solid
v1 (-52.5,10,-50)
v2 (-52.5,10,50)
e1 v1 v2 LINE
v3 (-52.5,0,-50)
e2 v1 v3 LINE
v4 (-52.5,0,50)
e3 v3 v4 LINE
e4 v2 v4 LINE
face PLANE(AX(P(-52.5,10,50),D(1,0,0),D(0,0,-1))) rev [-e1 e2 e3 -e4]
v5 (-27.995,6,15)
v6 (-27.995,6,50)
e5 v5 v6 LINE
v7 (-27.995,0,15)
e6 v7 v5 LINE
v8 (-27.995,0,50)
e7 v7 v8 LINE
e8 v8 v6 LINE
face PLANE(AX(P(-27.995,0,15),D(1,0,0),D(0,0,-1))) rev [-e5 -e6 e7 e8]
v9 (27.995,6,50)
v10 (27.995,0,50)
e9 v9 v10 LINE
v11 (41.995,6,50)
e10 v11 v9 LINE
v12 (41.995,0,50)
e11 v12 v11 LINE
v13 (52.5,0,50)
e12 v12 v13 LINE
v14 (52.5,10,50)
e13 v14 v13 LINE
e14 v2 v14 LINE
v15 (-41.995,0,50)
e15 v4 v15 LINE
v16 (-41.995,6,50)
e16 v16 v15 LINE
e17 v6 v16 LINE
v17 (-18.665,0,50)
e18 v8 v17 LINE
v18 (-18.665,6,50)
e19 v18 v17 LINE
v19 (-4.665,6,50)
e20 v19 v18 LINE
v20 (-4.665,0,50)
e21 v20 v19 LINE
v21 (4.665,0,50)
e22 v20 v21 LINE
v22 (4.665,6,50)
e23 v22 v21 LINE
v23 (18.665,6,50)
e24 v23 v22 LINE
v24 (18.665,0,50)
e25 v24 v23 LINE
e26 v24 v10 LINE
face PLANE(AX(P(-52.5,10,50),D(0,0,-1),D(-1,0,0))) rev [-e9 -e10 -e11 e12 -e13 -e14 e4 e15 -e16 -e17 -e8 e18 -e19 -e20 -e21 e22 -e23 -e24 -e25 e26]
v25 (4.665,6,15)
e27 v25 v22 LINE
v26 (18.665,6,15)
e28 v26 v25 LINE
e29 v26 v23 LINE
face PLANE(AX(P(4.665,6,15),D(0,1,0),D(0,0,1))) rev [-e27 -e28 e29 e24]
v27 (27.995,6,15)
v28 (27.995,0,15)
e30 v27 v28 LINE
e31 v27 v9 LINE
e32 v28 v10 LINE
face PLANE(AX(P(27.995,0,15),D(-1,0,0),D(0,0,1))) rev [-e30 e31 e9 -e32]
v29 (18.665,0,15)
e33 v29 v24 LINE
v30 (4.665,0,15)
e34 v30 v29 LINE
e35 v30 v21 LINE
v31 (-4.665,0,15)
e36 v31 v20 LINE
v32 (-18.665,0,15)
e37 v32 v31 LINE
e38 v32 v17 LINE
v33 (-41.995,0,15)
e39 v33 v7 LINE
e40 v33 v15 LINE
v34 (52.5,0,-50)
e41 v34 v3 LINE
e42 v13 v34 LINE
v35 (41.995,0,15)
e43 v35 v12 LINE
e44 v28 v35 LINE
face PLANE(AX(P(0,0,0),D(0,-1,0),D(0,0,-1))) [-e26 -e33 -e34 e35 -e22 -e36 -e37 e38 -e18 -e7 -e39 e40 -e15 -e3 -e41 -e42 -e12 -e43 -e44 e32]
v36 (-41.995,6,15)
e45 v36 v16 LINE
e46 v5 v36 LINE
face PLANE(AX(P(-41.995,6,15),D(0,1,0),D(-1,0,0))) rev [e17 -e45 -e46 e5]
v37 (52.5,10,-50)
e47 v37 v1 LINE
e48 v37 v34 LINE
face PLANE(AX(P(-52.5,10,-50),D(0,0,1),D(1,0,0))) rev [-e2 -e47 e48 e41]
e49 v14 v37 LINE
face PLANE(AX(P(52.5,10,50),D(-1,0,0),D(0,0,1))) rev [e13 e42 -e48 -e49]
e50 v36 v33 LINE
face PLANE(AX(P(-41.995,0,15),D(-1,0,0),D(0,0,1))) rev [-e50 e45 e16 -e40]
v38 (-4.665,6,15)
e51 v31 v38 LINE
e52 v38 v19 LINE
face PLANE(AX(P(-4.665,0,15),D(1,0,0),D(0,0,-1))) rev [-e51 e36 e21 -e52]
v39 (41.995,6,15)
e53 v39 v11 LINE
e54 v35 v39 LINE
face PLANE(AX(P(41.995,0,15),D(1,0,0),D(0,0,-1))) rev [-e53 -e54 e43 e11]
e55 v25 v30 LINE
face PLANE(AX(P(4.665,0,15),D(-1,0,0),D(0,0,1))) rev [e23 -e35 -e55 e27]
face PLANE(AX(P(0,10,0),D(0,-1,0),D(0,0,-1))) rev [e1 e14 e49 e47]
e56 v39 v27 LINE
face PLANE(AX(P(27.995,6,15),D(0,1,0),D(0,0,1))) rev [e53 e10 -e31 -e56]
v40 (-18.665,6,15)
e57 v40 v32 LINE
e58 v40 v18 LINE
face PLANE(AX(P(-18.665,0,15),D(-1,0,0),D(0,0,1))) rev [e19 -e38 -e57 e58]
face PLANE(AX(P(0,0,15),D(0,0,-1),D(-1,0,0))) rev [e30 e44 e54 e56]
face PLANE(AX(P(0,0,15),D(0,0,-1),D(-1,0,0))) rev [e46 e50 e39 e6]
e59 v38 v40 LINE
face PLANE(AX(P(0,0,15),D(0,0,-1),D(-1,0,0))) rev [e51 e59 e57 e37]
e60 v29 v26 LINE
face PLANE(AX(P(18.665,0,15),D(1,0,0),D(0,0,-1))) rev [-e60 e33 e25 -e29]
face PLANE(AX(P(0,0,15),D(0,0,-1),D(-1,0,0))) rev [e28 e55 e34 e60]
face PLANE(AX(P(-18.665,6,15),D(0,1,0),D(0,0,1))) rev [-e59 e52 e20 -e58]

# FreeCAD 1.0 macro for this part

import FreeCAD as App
import Part
import Sketcher

V = App.Vector


def add_polygon(sketch, points):
    """Adds a closed chain of lines whose ends are joined by coincident constraints."""
    first, n = sketch.GeometryCount, len(points)
    for a, b in zip(points, points[1:] + points[:1]):
        sketch.addGeometry(Part.LineSegment(App.Vector(*a, 0), App.Vector(*b, 0)), False)
    for i in range(n):
        sketch.addConstraint(Sketcher.Constraint("Coincident", first + i, 2, first + (i + 1) % n, 1))

doc = App.newDocument("Part")
body = doc.addObject("PartDesign::Body", "Body")

# Sketch on XZ plane
sketch1 = doc.addObject("Sketcher::SketchObject", "Sketch")
body.addObject(sketch1)
sketch1.AttachmentSupport = (doc.XZ_Plane, [""])
sketch1.MapMode = "FlatFace"
add_polygon(sketch1, [(-52, -50), (-52, 50), (52, 50), (52, -50)])  # lines 0-3
sketch1.addConstraint(Sketcher.Constraint("Vertical", 0))
sketch1.addConstraint(Sketcher.Constraint("Horizontal", 1))
sketch1.addConstraint(Sketcher.Constraint("Vertical", 2))
sketch1.addConstraint(Sketcher.Constraint("Horizontal", 3))
sketch1.addConstraint(Sketcher.Constraint("Symmetric", 0, 2, 2, 2, -1, 1))
sketch1.addConstraint(Sketcher.Constraint("DistanceX", 1, 1, 1, 2, 105.0))
sketch1.addConstraint(Sketcher.Constraint("DistanceY", 0, 1, 0, 2, 100.0))
pad1 = doc.addObject("PartDesign::Pad", "Pad")
body.addObject(pad1)
pad1.Profile = sketch1
pad1.Length = 10
pad1.Reversed = True

# Sketch on XY plane
sketch2 = doc.addObject("Sketcher::SketchObject", "Sketch001")
body.addObject(sketch2)
sketch2.AttachmentSupport = (doc.XY_Plane, [""])
sketch2.MapMode = "FlatFace"
sketch2.AttachmentOffset = App.Placement(V(0, 0, 50), App.Rotation())
add_polygon(sketch2, [(-42, 6), (-42, 0), (-28, 0), (-28, 6)])  # lines 0-3
add_polygon(sketch2, [(-19, 6), (-19, 0), (-5, 0), (-5, 6)])  # lines 4-7
add_polygon(sketch2, [(28, 6), (28, 0), (42, 0), (42, 6)])  # lines 8-11
add_polygon(sketch2, [(5, 6), (5, 0), (19, 0), (19, 6)])  # lines 12-15
sketch2.addConstraint(Sketcher.Constraint("Vertical", 0))
sketch2.addConstraint(Sketcher.Constraint("Horizontal", 1))
sketch2.addConstraint(Sketcher.Constraint("Vertical", 2))
sketch2.addConstraint(Sketcher.Constraint("Horizontal", 3))
sketch2.addConstraint(Sketcher.Constraint("Vertical", 4))
sketch2.addConstraint(Sketcher.Constraint("Horizontal", 5))
sketch2.addConstraint(Sketcher.Constraint("Vertical", 6))
sketch2.addConstraint(Sketcher.Constraint("Horizontal", 7))
sketch2.addConstraint(Sketcher.Constraint("Vertical", 8))
sketch2.addConstraint(Sketcher.Constraint("Horizontal", 9))
sketch2.addConstraint(Sketcher.Constraint("Vertical", 10))
sketch2.addConstraint(Sketcher.Constraint("Horizontal", 11))
sketch2.addConstraint(Sketcher.Constraint("Vertical", 12))
sketch2.addConstraint(Sketcher.Constraint("Horizontal", 13))
sketch2.addConstraint(Sketcher.Constraint("Vertical", 14))
sketch2.addConstraint(Sketcher.Constraint("Horizontal", 15))
sketch2.addConstraint(Sketcher.Constraint("Symmetric", 1, 2, 8, 2, -1, 1))
sketch2.addConstraint(Sketcher.Constraint("Symmetric", 5, 2, 12, 2, -1, 1))
sketch2.addConstraint(Sketcher.Constraint("Symmetric", 0, 2, 9, 2, -2))
sketch2.addConstraint(Sketcher.Constraint("Symmetric", 4, 2, 13, 2, -2))
sketch2.addConstraint(Sketcher.Constraint("Horizontal", 3, 2, 6, 2))
sketch2.addConstraint(Sketcher.Constraint("Horizontal", 7, 2, 10, 2))
sketch2.addConstraint(Sketcher.Constraint("Horizontal", 11, 2, 14, 2))
sketch2.addConstraint(Sketcher.Constraint("Equal", 3, 5))
sketch2.addConstraint(Sketcher.Constraint("DistanceX", 1, 1, 1, 2, 14.0))
sketch2.addConstraint(Sketcher.Constraint("DistanceY", 0, 2, 0, 1, 6.0))
sketch2.addConstraint(Sketcher.Constraint("DistanceX", 1, 2, 4, 2, 9.33))
sketch2.addConstraint(Sketcher.Constraint("DistanceX", 5, 2, 8, 2, 32.66))
pocket1 = doc.addObject("PartDesign::Pocket", "Pocket")
body.addObject(pocket1)
pocket1.Profile = sketch2
pocket1.Length = 35

doc.recompute()
